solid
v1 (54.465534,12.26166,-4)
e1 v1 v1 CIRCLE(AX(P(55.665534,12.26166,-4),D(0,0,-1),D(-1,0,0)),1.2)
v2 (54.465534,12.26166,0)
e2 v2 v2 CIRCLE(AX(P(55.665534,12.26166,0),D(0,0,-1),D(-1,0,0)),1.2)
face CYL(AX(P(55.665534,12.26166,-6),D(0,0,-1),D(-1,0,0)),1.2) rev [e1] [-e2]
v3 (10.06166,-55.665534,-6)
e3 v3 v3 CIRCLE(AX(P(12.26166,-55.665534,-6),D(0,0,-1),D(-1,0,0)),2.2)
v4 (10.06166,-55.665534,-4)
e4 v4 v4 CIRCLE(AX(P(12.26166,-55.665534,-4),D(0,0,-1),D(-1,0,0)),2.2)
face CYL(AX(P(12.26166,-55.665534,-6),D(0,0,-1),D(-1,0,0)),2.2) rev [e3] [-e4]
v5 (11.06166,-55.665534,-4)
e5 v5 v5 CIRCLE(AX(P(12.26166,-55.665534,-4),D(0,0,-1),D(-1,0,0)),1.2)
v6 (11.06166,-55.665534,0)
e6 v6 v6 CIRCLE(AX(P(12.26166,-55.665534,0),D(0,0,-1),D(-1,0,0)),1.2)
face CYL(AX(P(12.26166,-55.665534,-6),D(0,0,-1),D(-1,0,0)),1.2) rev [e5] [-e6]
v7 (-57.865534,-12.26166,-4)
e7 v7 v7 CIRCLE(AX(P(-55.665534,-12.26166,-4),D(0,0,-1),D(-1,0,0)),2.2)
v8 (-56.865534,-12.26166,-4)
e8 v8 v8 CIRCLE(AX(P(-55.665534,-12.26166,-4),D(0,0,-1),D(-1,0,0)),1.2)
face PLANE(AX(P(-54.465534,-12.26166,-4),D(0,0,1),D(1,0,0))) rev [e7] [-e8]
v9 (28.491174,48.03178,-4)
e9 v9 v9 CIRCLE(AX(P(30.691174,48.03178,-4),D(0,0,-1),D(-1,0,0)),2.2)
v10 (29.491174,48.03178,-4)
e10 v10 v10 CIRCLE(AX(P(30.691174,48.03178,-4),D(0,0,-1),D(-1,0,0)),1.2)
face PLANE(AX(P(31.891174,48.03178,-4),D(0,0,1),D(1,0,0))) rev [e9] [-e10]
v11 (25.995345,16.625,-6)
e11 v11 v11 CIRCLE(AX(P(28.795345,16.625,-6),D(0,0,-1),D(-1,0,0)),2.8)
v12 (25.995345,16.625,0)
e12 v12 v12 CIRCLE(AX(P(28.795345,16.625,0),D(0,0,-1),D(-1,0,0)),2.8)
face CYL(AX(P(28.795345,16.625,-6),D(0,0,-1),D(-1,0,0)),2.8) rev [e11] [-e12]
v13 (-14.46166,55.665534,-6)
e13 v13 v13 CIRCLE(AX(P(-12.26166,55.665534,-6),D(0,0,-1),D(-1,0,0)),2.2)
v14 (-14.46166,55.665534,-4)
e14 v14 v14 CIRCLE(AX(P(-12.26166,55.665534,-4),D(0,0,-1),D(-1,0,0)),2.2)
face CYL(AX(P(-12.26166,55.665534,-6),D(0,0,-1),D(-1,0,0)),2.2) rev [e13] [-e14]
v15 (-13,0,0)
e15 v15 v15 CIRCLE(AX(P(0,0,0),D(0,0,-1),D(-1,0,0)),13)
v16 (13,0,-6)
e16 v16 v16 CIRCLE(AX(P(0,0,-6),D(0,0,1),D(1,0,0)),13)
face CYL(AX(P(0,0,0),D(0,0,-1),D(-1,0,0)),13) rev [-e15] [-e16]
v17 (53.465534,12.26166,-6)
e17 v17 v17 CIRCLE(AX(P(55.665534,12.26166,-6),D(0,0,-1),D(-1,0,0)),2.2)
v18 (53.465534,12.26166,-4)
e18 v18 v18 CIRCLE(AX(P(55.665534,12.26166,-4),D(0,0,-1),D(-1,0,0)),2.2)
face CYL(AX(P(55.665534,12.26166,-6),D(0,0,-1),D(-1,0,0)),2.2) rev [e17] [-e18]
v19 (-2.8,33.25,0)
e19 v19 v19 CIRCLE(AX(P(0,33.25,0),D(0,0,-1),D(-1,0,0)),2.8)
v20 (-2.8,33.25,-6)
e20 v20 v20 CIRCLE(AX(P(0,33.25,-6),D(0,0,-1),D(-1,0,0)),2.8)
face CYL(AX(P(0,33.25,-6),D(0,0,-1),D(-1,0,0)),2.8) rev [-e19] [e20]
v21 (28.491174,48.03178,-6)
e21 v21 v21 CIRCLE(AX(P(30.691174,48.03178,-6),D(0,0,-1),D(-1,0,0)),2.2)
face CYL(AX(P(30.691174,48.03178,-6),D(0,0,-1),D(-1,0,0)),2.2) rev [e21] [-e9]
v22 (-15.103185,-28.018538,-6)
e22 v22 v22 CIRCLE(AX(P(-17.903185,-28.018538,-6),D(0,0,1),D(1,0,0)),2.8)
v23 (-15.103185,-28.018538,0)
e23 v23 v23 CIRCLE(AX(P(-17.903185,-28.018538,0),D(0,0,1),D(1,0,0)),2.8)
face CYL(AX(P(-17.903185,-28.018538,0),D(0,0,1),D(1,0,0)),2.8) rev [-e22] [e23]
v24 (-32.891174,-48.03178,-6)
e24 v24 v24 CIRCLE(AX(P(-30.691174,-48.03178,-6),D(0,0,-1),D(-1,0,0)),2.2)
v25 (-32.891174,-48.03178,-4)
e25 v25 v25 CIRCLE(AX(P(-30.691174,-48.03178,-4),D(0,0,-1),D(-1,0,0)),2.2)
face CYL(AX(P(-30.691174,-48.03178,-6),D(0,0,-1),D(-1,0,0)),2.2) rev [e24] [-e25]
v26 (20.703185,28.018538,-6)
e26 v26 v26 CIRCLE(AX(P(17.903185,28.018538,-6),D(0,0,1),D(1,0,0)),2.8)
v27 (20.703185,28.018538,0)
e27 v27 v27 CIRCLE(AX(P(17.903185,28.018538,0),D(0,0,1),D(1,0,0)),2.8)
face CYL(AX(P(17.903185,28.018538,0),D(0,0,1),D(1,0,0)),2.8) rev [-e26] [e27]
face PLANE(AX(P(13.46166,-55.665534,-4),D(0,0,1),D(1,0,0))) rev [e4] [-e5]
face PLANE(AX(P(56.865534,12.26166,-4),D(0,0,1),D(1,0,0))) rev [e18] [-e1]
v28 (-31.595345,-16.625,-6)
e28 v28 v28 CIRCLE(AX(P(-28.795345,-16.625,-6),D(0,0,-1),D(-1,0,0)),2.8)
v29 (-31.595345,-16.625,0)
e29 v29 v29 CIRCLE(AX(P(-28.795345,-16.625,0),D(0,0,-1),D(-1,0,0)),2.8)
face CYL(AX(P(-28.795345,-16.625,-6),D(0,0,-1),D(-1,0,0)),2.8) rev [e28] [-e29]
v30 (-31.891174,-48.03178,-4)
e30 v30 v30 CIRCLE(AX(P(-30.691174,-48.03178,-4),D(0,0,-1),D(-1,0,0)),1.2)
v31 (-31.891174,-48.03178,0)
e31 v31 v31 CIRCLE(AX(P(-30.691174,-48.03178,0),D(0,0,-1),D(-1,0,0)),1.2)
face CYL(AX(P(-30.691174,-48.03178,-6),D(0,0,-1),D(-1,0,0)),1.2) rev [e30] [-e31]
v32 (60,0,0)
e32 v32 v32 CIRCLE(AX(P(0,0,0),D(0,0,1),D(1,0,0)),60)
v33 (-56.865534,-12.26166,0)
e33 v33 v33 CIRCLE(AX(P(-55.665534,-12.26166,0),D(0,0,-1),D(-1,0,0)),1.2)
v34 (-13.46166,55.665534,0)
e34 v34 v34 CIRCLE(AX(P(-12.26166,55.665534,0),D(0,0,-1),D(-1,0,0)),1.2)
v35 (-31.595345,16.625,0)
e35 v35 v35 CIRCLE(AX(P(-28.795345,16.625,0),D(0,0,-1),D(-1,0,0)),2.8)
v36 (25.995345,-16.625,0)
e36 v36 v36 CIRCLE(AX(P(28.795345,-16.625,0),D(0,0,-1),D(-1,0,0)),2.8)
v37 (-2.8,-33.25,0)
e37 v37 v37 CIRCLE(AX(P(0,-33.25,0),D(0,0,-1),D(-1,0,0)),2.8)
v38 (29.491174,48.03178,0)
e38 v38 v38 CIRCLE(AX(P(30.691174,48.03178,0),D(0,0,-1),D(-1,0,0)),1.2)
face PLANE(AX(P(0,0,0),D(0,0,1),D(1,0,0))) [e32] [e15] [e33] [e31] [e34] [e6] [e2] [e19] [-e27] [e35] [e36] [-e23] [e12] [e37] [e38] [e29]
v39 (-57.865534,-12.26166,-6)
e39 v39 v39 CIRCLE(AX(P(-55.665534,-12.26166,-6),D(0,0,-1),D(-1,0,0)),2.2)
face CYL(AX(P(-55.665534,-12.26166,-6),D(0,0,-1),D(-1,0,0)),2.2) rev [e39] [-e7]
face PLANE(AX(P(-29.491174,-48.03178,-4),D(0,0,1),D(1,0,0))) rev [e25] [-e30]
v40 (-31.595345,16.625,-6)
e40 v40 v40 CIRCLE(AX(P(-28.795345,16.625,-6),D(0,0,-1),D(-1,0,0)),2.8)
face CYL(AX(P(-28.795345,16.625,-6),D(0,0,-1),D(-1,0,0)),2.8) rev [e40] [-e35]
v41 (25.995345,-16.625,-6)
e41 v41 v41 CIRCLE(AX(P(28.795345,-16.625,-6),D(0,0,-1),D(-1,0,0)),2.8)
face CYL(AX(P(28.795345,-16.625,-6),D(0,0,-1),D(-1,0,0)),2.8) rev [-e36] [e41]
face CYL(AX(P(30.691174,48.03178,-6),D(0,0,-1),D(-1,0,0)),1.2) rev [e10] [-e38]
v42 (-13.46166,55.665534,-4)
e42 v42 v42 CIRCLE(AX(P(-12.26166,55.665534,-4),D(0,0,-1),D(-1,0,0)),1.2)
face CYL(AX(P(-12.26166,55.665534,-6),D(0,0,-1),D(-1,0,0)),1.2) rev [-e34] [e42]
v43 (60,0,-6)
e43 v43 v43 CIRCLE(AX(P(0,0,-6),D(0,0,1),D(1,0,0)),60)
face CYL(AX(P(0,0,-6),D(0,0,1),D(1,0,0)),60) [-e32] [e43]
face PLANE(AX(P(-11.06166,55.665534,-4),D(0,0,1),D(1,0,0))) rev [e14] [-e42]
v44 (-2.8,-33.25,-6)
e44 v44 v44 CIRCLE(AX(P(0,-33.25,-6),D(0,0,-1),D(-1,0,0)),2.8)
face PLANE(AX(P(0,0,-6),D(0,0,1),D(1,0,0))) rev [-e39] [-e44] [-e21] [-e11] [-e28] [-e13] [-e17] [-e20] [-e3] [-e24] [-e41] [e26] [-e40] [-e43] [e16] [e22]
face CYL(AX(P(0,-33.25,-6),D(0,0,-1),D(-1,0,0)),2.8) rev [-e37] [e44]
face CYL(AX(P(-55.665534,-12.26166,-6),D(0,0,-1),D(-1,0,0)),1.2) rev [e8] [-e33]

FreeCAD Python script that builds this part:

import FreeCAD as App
import Part
import Sketcher
from FreeCAD import Vector
Q = App.Units.Quantity

doc = App.newDocument("Part")
body = doc.addObject("PartDesign::Body", "Body")

sketch1 = body.newObject("Sketcher::SketchObject", "Sketch")
sketch1.AttachmentSupport = (doc.getObject("XY_Plane"), [""])
sketch1.MapMode = "FlatFace"
sketch1.addGeometry(Part.Circle(Vector(0, 0, 0), Vector(0, 0, 1), 60), False)
sketch1.addConstraint([
    Sketcher.Constraint("Coincident", 0, 3, -1, 1),
    Sketcher.Constraint("Diameter", 0, Q("120 mm")),
])
pad1 = body.newObject("PartDesign::Pad", "Pad")
pad1.Profile = sketch1
pad1.Length = 6
pad1.Reversed = True

sketch2 = body.newObject("Sketcher::SketchObject", "Sketch001")
sketch2.AttachmentSupport = (doc.getObject("XY_Plane"), [""])
sketch2.MapMode = "FlatFace"
sketch2.AttachmentOffset = App.Placement(Vector(0, 0, -6), App.Rotation())
sketch2.addGeometry(Part.Circle(Vector(0, 0, 0), Vector(0, 0, 1), 13), False)
sketch2.addConstraint([
    Sketcher.Constraint("Coincident", 0, 3, -1, 1),
    Sketcher.Constraint("Diameter", 0, Q("26 mm")),
])
pocket1 = body.newObject("PartDesign::Pocket", "Pocket")
pocket1.Profile = sketch2
pocket1.Type = "ThroughAll"
pocket1.Midplane = True

sketch3 = body.newObject("Sketcher::SketchObject", "Sketch002")
sketch3.AttachmentSupport = (doc.getObject("XY_Plane"), [""])
sketch3.MapMode = "FlatFace"
sketch3.AttachmentOffset = App.Placement(Vector(0, 0, -6), App.Rotation())
sketch3.addGeometry([
    Part.Circle(Vector(0, 0, 0), Vector(0, 0, 1), 2.8),
    Part.Circle(Vector(0, -33.2, 0), Vector(0, 0, 1), 2.8),
    Part.Circle(Vector(28.8, -16.6, 0), Vector(0, 0, 1), 2.8),
    Part.Circle(Vector(28.8, 16.6, 0), Vector(0, 0, 1), 2.8),
    Part.Circle(Vector(0, 33.2, 0), Vector(0, 0, 1), 2.8),
    Part.Circle(Vector(-28.8, 16.6, 0), Vector(0, 0, 1), 2.8),
    Part.Circle(Vector(-28.8, -16.6, 0), Vector(0, 0, 1), 2.8),
], False)
sketch3.addConstraint([
    Sketcher.Constraint("Coincident", 0, 3, -1, 1),
    Sketcher.Constraint("Equal", 0, 1),
    Sketcher.Constraint("Equal", 1, 2),
    Sketcher.Constraint("Equal", 2, 3),
    Sketcher.Constraint("Equal", 3, 4),
    Sketcher.Constraint("Equal", 4, 5),
    Sketcher.Constraint("Equal", 5, 6),
    Sketcher.Constraint("Symmetric", 1, 3, 4, 3, -1, 1),
    Sketcher.Constraint("Symmetric", 2, 3, 5, 3, -1, 1),
    Sketcher.Constraint("Symmetric", 3, 3, 6, 3, -1, 1),
    Sketcher.Constraint("Symmetric", 3, 3, 5, 3, -2),
    Sketcher.Constraint("PointOnObject", 1, 3, -2),
    Sketcher.Constraint("Diameter", 0, Q("5.6 mm")),
    Sketcher.Constraint("DistanceY", 1, 3, 4, 3, Q("66.5 mm")),
    Sketcher.Constraint("DistanceY", 2, 3, 3, 3, Q("33.25 mm")),
    Sketcher.Constraint("DistanceX", 5, 3, 3, 3, Q("57.590689 mm")),
])
doc.recompute()
hole = body.newObject("PartDesign::Hole", "Hole")
hole.Profile = sketch3
hole.ThreadType = "None"
hole.Diameter = 5.6
hole.DepthType = "ThroughAll"
hole.Reversed = True

sketch4 = body.newObject("Sketcher::SketchObject", "Sketch003")
sketch4.AttachmentSupport = (doc.getObject("XY_Plane"), [""])
sketch4.MapMode = "FlatFace"
sketch4.addGeometry([
    Part.Circle(Vector(17.9, 28, 0), Vector(0, 0, 1), 2.8),
    Part.Circle(Vector(-17.9, -28, 0), Vector(0, 0, 1), 2.8),
], False)
sketch4.addConstraint([
    Sketcher.Constraint("Equal", 0, 1),
    Sketcher.Constraint("Symmetric", 0, 3, 1, 3, -1, 1),
    Sketcher.Constraint("Diameter", 0, Q("5.6 mm")),
    Sketcher.Constraint("DistanceY", -1, 1, 0, 3, Q("28.018538 mm")),
    Sketcher.Constraint("DistanceX", 1, 3, 0, 3, Q("35.806369 mm")),
])
doc.recompute()
hole2 = body.newObject("PartDesign::Hole", "Hole001")
hole2.Profile = sketch4
hole2.ThreadType = "None"
hole2.Diameter = 5.6
hole2.DepthType = "ThroughAll"

sketch5 = body.newObject("Sketcher::SketchObject", "Sketch004")
sketch5.AttachmentSupport = (doc.getObject("XY_Plane"), [""])
sketch5.MapMode = "FlatFace"
sketch5.AttachmentOffset = App.Placement(Vector(0, 0, -6), App.Rotation())
sketch5.addGeometry([
    Part.Circle(Vector(55.7, 12.3, 0), Vector(0, 0, 1), 1.2),
    Part.Circle(Vector(30.7, 48, 0), Vector(0, 0, 1), 1.2),
    Part.Circle(Vector(-12.3, 55.7, 0), Vector(0, 0, 1), 1.2),
    Part.Circle(Vector(-55.7, -12.3, 0), Vector(0, 0, 1), 1.2),
    Part.Circle(Vector(-30.7, -48, 0), Vector(0, 0, 1), 1.2),
    Part.Circle(Vector(12.3, -55.7, 0), Vector(0, 0, 1), 1.2),
], False)
sketch5.addConstraint([
    Sketcher.Constraint("Equal", 0, 1),
    Sketcher.Constraint("Equal", 1, 2),
    Sketcher.Constraint("Equal", 2, 3),
    Sketcher.Constraint("Equal", 3, 4),
    Sketcher.Constraint("Equal", 4, 5),
    Sketcher.Constraint("Symmetric", 0, 3, 3, 3, -1, 1),
    Sketcher.Constraint("Symmetric", 1, 3, 4, 3, -1, 1),
    Sketcher.Constraint("Symmetric", 2, 3, 5, 3, -1, 1),
    Sketcher.Constraint("Diameter", 0, Q("2.4 mm")),
    Sketcher.Constraint("DistanceY", -1, 1, 0, 3, Q("12.26166 mm")),
    Sketcher.Constraint("DistanceY", -1, 1, 1, 3, Q("48.03178 mm")),
    Sketcher.Constraint("DistanceX", 2, 3, -1, 1, Q("12.26166 mm")),
    Sketcher.Constraint("DistanceX", 1, 3, 0, 3, Q("24.974361 mm")),
    Sketcher.Constraint("DistanceX", 3, 3, 0, 3, Q("111.331068 mm")),
    Sketcher.Constraint("DistanceY", 5, 3, 2, 3, Q("111.331068 mm")),
])
doc.recompute()
hole3 = body.newObject("PartDesign::Hole", "Hole002")
hole3.Profile = sketch5
hole3.ThreadType = "None"
hole3.Diameter = 2.4
hole3.DepthType = "ThroughAll"
hole3.HoleCutType = "Counterbore"
hole3.HoleCutDiameter = 4.4
hole3.HoleCutDepth = 2
hole3.Reversed = True

doc.recompute()
